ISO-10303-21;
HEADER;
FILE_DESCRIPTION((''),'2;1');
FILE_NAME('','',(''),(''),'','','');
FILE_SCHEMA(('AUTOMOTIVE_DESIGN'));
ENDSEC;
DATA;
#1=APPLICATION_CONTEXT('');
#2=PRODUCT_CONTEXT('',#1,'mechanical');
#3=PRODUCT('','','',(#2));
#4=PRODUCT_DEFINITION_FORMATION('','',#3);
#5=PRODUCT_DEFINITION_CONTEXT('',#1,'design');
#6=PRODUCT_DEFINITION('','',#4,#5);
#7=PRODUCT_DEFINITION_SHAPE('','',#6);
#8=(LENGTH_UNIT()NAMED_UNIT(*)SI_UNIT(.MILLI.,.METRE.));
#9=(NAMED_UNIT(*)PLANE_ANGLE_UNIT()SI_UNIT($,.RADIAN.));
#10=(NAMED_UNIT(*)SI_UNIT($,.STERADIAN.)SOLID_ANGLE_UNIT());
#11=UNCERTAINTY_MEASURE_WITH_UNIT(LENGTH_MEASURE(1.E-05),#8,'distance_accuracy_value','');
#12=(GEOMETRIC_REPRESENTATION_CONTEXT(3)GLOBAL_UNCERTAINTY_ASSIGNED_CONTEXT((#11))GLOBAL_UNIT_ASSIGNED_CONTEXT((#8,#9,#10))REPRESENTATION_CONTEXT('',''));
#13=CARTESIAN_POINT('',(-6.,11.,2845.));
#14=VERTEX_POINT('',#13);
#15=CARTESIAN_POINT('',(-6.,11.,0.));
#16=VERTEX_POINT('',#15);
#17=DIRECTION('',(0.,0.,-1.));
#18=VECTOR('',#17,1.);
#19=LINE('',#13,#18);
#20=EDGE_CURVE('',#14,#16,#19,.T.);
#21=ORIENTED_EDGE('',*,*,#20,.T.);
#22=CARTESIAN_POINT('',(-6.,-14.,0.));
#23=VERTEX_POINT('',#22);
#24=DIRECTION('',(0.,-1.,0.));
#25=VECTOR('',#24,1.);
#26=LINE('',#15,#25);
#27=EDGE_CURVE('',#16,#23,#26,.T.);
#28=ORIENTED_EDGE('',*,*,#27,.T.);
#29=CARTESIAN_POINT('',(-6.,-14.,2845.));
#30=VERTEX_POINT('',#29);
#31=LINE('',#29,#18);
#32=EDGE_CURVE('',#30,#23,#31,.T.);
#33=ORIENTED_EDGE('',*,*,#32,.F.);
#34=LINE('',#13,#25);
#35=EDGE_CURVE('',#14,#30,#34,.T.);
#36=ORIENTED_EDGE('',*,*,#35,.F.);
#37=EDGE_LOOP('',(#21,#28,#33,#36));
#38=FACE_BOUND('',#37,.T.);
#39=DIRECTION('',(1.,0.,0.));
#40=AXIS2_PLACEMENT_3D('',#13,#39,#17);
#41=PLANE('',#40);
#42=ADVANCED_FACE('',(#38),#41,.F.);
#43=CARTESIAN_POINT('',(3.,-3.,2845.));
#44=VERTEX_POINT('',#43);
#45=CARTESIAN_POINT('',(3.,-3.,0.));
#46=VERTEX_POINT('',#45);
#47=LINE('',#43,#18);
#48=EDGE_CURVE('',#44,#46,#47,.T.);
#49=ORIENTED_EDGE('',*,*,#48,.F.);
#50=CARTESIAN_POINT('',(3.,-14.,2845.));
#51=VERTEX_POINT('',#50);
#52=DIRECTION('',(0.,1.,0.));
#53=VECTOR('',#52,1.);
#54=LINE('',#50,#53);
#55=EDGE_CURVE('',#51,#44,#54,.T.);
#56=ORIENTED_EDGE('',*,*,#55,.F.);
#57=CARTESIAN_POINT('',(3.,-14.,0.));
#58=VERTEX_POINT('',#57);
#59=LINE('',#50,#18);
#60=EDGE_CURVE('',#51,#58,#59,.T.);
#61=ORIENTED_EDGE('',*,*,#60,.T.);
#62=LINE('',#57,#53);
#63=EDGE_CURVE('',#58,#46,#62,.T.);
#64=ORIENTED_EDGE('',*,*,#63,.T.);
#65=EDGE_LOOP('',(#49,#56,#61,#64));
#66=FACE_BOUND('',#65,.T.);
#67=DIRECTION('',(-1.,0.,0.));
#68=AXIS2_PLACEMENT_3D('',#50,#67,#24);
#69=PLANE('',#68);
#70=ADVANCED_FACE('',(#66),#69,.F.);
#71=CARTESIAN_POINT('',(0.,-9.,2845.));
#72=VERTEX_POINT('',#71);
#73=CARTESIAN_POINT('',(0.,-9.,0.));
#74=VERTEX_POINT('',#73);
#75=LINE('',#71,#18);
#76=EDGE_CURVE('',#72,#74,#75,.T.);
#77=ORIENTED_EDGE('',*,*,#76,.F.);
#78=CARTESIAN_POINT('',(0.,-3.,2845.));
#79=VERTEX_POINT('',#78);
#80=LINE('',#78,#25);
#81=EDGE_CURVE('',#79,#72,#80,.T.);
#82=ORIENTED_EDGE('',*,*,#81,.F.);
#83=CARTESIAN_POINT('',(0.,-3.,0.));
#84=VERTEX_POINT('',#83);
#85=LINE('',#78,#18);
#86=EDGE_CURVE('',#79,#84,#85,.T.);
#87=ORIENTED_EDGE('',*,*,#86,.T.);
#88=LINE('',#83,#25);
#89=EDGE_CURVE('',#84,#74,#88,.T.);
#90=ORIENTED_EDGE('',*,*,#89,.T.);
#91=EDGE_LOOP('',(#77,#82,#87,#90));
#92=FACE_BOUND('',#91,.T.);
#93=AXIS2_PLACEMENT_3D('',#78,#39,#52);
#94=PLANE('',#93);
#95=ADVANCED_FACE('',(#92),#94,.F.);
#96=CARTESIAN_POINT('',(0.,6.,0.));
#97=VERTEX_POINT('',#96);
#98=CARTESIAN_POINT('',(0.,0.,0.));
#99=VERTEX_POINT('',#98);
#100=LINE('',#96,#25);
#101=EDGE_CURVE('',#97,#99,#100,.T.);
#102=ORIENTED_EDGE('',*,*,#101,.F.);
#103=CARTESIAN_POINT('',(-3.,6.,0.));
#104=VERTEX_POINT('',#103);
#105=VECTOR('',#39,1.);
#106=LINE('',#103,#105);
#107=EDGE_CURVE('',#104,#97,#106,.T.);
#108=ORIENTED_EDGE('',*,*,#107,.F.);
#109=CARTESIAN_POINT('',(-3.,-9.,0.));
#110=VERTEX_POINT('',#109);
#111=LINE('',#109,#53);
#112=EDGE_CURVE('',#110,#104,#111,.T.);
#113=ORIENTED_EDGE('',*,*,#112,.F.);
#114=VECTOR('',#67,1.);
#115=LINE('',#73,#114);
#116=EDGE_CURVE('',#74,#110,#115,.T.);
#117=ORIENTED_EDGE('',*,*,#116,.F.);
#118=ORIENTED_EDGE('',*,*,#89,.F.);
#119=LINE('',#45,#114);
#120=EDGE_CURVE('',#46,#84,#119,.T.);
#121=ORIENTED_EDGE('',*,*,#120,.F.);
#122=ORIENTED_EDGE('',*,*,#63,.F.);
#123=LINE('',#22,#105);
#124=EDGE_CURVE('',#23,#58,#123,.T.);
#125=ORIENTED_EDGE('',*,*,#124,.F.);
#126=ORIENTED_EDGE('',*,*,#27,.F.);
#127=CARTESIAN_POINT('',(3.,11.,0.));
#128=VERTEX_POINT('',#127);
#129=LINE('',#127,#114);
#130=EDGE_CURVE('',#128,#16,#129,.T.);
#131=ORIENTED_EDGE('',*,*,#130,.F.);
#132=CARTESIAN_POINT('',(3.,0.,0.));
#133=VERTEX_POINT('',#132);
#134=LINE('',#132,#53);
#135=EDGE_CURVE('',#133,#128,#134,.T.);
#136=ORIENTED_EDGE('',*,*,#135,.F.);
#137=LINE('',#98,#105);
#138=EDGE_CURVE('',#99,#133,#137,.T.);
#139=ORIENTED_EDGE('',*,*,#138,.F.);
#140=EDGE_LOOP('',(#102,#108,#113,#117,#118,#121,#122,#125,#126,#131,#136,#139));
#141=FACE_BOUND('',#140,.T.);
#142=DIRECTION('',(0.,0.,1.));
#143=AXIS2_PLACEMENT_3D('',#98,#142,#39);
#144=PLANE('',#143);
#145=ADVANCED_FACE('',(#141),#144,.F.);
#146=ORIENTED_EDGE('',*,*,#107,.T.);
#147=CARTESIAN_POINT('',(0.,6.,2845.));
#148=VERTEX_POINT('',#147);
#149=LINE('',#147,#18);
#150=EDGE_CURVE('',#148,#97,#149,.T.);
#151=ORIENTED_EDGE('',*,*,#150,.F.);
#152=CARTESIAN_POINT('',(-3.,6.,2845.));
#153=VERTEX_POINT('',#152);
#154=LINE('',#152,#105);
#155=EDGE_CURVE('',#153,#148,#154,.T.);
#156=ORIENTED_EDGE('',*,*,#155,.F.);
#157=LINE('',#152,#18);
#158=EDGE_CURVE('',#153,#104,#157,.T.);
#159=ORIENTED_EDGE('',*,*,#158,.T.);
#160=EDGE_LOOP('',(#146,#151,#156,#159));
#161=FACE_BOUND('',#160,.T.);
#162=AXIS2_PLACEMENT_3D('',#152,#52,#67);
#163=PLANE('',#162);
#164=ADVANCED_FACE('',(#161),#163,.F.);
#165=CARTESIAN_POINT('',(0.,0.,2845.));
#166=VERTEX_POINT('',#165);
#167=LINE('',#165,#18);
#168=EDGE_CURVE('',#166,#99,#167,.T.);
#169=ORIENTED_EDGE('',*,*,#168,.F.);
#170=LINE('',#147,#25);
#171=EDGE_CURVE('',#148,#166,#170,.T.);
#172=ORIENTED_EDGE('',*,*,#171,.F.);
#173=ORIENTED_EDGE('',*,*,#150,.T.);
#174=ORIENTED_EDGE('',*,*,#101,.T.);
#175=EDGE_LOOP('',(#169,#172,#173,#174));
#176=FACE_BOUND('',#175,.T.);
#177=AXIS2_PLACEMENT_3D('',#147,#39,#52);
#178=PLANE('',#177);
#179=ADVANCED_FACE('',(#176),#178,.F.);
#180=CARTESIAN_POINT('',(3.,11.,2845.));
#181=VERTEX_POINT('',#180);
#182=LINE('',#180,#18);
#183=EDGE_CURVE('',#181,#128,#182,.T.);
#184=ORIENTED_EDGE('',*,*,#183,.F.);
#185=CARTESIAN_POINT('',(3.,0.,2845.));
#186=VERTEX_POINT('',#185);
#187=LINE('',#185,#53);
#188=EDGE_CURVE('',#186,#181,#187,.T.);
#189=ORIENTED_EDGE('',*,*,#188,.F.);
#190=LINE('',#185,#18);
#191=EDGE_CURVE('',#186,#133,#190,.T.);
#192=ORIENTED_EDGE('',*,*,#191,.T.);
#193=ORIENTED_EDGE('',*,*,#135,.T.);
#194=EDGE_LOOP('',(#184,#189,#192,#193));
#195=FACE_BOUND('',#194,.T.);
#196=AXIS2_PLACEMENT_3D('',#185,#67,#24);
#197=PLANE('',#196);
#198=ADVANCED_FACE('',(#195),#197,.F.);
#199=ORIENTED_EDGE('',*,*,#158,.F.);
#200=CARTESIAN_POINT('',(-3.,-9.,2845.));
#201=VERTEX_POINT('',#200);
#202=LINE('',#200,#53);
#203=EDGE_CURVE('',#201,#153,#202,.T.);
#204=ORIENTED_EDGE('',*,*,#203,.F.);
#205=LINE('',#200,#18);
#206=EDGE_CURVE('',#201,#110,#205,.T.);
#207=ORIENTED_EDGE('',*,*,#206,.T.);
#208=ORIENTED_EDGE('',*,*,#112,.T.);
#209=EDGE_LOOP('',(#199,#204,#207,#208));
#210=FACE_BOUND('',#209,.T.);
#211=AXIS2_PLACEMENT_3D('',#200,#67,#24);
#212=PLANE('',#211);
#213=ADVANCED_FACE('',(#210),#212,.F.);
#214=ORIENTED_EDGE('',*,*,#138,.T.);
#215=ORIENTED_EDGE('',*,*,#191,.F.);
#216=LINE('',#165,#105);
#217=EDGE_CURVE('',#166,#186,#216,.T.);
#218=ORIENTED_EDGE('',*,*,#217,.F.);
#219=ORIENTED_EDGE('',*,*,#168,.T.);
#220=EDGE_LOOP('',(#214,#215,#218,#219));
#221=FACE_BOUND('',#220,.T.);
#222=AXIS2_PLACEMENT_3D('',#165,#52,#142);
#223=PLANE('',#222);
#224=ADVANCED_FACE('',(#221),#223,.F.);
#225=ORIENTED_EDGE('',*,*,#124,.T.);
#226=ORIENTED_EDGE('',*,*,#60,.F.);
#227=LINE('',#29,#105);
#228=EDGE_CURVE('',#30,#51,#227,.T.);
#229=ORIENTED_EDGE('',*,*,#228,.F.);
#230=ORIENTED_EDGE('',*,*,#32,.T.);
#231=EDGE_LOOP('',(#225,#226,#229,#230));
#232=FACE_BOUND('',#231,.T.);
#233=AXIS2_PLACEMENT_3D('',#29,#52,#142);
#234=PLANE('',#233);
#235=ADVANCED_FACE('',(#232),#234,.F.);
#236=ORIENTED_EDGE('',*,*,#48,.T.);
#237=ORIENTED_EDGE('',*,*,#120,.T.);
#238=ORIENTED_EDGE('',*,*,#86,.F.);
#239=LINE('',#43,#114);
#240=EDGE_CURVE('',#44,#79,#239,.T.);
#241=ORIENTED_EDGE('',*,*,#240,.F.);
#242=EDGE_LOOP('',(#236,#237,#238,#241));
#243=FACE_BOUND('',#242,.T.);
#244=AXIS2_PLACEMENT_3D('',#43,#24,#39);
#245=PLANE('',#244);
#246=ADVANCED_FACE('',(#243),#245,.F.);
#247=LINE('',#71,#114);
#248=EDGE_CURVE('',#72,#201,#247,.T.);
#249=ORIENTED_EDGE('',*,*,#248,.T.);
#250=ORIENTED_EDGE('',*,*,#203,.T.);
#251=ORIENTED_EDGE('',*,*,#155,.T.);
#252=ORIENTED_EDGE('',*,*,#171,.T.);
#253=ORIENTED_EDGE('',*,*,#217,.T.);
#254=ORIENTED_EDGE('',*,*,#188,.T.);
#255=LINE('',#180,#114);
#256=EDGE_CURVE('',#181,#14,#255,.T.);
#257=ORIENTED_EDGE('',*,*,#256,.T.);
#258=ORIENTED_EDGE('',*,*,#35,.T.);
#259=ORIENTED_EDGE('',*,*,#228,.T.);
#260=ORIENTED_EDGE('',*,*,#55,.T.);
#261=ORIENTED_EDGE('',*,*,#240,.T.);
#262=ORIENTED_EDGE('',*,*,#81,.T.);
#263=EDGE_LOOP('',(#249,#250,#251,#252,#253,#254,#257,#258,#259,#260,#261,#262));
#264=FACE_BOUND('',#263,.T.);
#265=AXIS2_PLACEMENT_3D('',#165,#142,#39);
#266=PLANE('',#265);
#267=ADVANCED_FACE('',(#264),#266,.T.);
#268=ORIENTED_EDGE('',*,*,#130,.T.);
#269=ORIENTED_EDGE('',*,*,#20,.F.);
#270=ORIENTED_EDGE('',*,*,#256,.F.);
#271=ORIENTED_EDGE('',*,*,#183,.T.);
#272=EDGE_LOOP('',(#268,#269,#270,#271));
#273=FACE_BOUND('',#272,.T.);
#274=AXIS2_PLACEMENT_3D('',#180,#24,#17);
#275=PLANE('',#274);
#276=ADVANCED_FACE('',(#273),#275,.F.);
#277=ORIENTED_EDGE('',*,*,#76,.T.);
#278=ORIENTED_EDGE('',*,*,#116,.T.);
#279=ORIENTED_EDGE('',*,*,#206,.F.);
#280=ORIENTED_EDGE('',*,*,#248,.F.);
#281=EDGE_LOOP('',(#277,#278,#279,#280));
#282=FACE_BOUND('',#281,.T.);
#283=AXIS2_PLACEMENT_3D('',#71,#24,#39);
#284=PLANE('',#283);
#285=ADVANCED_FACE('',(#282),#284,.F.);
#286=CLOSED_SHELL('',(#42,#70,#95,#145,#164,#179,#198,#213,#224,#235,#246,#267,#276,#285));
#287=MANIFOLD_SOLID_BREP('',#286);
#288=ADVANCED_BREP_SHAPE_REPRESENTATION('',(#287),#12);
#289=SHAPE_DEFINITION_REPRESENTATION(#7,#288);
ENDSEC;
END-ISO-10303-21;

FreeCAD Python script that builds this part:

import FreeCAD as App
import Part
import Sketcher

V = App.Vector

doc = App.newDocument("Part")
body = doc.addObject("PartDesign::Body", "Body")

sketch1 = body.newObject("Sketcher::SketchObject", "Sketch")
sketch1.AttachmentSupport = (doc.getObject("XY_Plane"), [""])
sketch1.MapMode = "FlatFace"
sketch1.addGeometry(Part.LineSegment(V(0, 0, 0), V(3, 0, 0)), False)
sketch1.addGeometry(Part.LineSegment(V(3, 0, 0), V(3, 11, 0)), False)
sketch1.addGeometry(Part.LineSegment(V(3, 11, 0), V(-6, 11, 0)), False)
sketch1.addGeometry(Part.LineSegment(V(-6, 11, 0), V(-6, -14, 0)), False)
sketch1.addGeometry(Part.LineSegment(V(-6, -14, 0), V(3, -14, 0)), False)
sketch1.addGeometry(Part.LineSegment(V(3, -14, 0), V(3, -3, 0)), False)
sketch1.addGeometry(Part.LineSegment(V(3, -3, 0), V(0, -3, 0)), False)
sketch1.addGeometry(Part.LineSegment(V(0, -3, 0), V(0, -9, 0)), False)
sketch1.addGeometry(Part.LineSegment(V(0, -9, 0), V(-3, -9, 0)), False)
sketch1.addGeometry(Part.LineSegment(V(-3, -9, 0), V(-3, 6, 0)), False)
sketch1.addGeometry(Part.LineSegment(V(-3, 6, 0), V(0, 6, 0)), False)
sketch1.addGeometry(Part.LineSegment(V(0, 6, 0), V(0, 0, 0)), False)
sketch1.addConstraint(Sketcher.Constraint("Coincident", 0, 2, 1, 1))
sketch1.addConstraint(Sketcher.Constraint("Coincident", 1, 2, 2, 1))
sketch1.addConstraint(Sketcher.Constraint("Coincident", 2, 2, 3, 1))
sketch1.addConstraint(Sketcher.Constraint("Coincident", 3, 2, 4, 1))
sketch1.addConstraint(Sketcher.Constraint("Coincident", 4, 2, 5, 1))
sketch1.addConstraint(Sketcher.Constraint("Coincident", 5, 2, 6, 1))
sketch1.addConstraint(Sketcher.Constraint("Coincident", 6, 2, 7, 1))
sketch1.addConstraint(Sketcher.Constraint("Coincident", 7, 2, 8, 1))
sketch1.addConstraint(Sketcher.Constraint("Coincident", 8, 2, 9, 1))
sketch1.addConstraint(Sketcher.Constraint("Coincident", 9, 2, 10, 1))
sketch1.addConstraint(Sketcher.Constraint("Coincident", 10, 2, 11, 1))
sketch1.addConstraint(Sketcher.Constraint("Coincident", 11, 2, 0, 1))
sketch1.addConstraint(Sketcher.Constraint("Horizontal", 0))
sketch1.addConstraint(Sketcher.Constraint("Vertical", 1))
sketch1.addConstraint(Sketcher.Constraint("Horizontal", 2))
sketch1.addConstraint(Sketcher.Constraint("Vertical", 3))
sketch1.addConstraint(Sketcher.Constraint("Horizontal", 4))
sketch1.addConstraint(Sketcher.Constraint("Vertical", 5))
sketch1.addConstraint(Sketcher.Constraint("Horizontal", 6))
sketch1.addConstraint(Sketcher.Constraint("Vertical", 7))
sketch1.addConstraint(Sketcher.Constraint("Horizontal", 8))
sketch1.addConstraint(Sketcher.Constraint("Vertical", 9))
sketch1.addConstraint(Sketcher.Constraint("Horizontal", 10))
sketch1.addConstraint(Sketcher.Constraint("Vertical", 11))
sketch1.addConstraint(Sketcher.Constraint("Coincident", 11, 2, -1, 1))
sketch1.addConstraint(Sketcher.Constraint("PointOnObject", 6, 2, -2))
sketch1.addConstraint(Sketcher.Constraint("Vertical", 1, 2, 4, 2))
sketch1.addConstraint(Sketcher.Constraint("Equal", 6, 8))
sketch1.addConstraint(Sketcher.Constraint("Equal", 1, 5))
sketch1.addConstraint(Sketcher.Constraint("Equal", 7, 11))
sketch1.addConstraint(Sketcher.Constraint("DistanceX", 0, 1, 0, 2, 3.0))
sketch1.addConstraint(Sketcher.Constraint("DistanceX", 2, 2, 2, 1, 9.0))
sketch1.addConstraint(Sketcher.Constraint("DistanceY", 1, 1, 1, 2, 11.0))
sketch1.addConstraint(Sketcher.Constraint("DistanceY", 3, 2, 3, 1, 25.0))
sketch1.addConstraint(Sketcher.Constraint("DistanceY", 7, 2, 7, 1, 6.0))
pad1 = body.newObject("PartDesign::Pad", "Pad")
pad1.Profile = sketch1
pad1.Length = 2845

doc.recompute()
